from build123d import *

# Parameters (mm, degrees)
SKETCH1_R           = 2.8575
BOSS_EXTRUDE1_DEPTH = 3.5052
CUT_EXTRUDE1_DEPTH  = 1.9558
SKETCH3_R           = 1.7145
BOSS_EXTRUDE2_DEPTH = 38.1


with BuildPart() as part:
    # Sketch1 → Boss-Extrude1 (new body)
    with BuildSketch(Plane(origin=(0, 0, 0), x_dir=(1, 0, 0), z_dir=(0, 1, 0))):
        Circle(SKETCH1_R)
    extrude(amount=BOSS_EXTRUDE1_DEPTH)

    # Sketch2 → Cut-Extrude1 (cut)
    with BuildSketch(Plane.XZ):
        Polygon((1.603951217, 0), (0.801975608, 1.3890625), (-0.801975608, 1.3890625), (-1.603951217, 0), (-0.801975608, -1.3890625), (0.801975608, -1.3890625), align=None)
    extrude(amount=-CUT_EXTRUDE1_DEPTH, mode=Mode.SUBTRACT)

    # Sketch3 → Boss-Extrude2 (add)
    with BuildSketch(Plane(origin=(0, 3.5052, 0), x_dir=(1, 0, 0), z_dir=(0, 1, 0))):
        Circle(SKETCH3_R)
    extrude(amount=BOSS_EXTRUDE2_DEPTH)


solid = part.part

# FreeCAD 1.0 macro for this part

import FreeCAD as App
import Part
import Sketcher
from FreeCAD import Vector
Q = App.Units.Quantity

doc = App.newDocument("Part")
params = doc.addObject("Spreadsheet::Sheet", "Params")
for row, (alias, value) in enumerate([
    ("sketch1_diameter", "0.225 in"),
    ("pad1_length", "0.138 in"),
    ("pocket1_length", "0.077 in"),
    ("sketch3_diameter", "0.135 in"),
    ("pad2_length", "1.5 in"),
], start=1):
    params.set(f"A{row}", alias)
    params.set(f"B{row}", "=" + value)
    params.setAlias(f"B{row}", alias)

body = doc.addObject("PartDesign::Body", "Body")

# Sketch on XZ plane
sketch1 = doc.addObject("Sketcher::SketchObject", "Sketch")
body.addObject(sketch1)
sketch1.AttachmentSupport = (doc.XZ_Plane, [""])
sketch1.MapMode = "FlatFace"
sketch1.addGeometry(Part.Circle(Vector(0, 0, 0), Vector(0, 0, 1), 2.8575), False)
sketch1.addConstraint(Sketcher.Constraint("Coincident", 0, 3, -1, 1))
sketch1.addConstraint(Sketcher.Constraint("Diameter", 0, Q("0.225 in")))
sketch1.setExpression("Constraints[1]", "Params.sketch1_diameter")
pad1 = doc.addObject("PartDesign::Pad", "Pad")
body.addObject(pad1)
pad1.Profile = sketch1
pad1.setExpression("Length", "Params.pad1_length")
pad1.Reversed = True

# Sketch on XZ plane
sketch2 = doc.addObject("Sketcher::SketchObject", "Sketch001")
body.addObject(sketch2)
sketch2.AttachmentSupport = (doc.XZ_Plane, [""])
sketch2.MapMode = "FlatFace"
sketch2.addGeometry(Part.LineSegment(Vector(1.603951, 0, 0), Vector(0.801976, 1.389063, 0)), False)
sketch2.addGeometry(Part.LineSegment(Vector(0.801976, 1.389063, 0), Vector(-0.801976, 1.389063, 0)), False)
sketch2.addGeometry(Part.LineSegment(Vector(-0.801976, 1.389063, 0), Vector(-1.603951, 0, 0)), False)
sketch2.addGeometry(Part.LineSegment(Vector(-1.603951, 0, 0), Vector(-0.801976, -1.389063, 0)), False)
sketch2.addGeometry(Part.LineSegment(Vector(-0.801976, -1.389063, 0), Vector(0.801976, -1.389063, 0)), False)
sketch2.addGeometry(Part.LineSegment(Vector(0.801976, -1.389063, 0), Vector(1.603951, 0, 0)), False)
sketch2.addConstraint(Sketcher.Constraint("Coincident", 0, 2, 1, 1))
sketch2.addConstraint(Sketcher.Constraint("Coincident", 1, 2, 2, 1))
sketch2.addConstraint(Sketcher.Constraint("Coincident", 2, 2, 3, 1))
sketch2.addConstraint(Sketcher.Constraint("Coincident", 3, 2, 4, 1))
sketch2.addConstraint(Sketcher.Constraint("Coincident", 4, 2, 5, 1))
sketch2.addConstraint(Sketcher.Constraint("Coincident", 5, 2, 0, 1))
sketch2.addConstraint(Sketcher.Constraint("Horizontal", 1))
sketch2.addConstraint(Sketcher.Constraint("Horizontal", 4))
sketch2.addConstraint(Sketcher.Constraint("Symmetric", 0, 2, 3, 2, -1, 1))
sketch2.addConstraint(Sketcher.Constraint("Symmetric", 2, 2, 5, 2, -1, 1))
sketch2.addConstraint(Sketcher.Constraint("PointOnObject", 2, 2, -1))
sketch2.addConstraint(Sketcher.Constraint("Parallel", 2, 5))
sketch2.addConstraint(Sketcher.Constraint("Vertical", 1, 2, 3, 2))
sketch2.addConstraint(Sketcher.Constraint("Angle", 0, Q("120 deg")))
sketch2.addConstraint(Sketcher.Constraint("DistanceY", 3, 2, 1, 2, Q("0.109375 in")))
sketch2.addConstraint(Sketcher.Constraint("DistanceX", 1, 2, 1, 1, 1.603951))
pocket1 = doc.addObject("PartDesign::Pocket", "Pocket")
body.addObject(pocket1)
pocket1.Profile = sketch2
pocket1.setExpression("Length", "Params.pocket1_length")

# Sketch on XZ plane
sketch3 = doc.addObject("Sketcher::SketchObject", "Sketch002")
body.addObject(sketch3)
sketch3.AttachmentSupport = (doc.XZ_Plane, [""])
sketch3.MapMode = "FlatFace"
sketch3.AttachmentOffset = App.Placement(Vector(0, 0, -0.138 * 25.4), App.Rotation())
sketch3.addGeometry(Part.Circle(Vector(0, 0, 0), Vector(0, 0, 1), 1.7145), False)
sketch3.addConstraint(Sketcher.Constraint("Coincident", 0, 3, -1, 1))
sketch3.addConstraint(Sketcher.Constraint("Diameter", 0, Q("0.135 in")))
sketch3.setExpression("Constraints[1]", "Params.sketch3_diameter")
pad2 = doc.addObject("PartDesign::Pad", "Pad001")
body.addObject(pad2)
pad2.Profile = sketch3
pad2.setExpression("Length", "Params.pad2_length")
pad2.Reversed = True

doc.recompute()
